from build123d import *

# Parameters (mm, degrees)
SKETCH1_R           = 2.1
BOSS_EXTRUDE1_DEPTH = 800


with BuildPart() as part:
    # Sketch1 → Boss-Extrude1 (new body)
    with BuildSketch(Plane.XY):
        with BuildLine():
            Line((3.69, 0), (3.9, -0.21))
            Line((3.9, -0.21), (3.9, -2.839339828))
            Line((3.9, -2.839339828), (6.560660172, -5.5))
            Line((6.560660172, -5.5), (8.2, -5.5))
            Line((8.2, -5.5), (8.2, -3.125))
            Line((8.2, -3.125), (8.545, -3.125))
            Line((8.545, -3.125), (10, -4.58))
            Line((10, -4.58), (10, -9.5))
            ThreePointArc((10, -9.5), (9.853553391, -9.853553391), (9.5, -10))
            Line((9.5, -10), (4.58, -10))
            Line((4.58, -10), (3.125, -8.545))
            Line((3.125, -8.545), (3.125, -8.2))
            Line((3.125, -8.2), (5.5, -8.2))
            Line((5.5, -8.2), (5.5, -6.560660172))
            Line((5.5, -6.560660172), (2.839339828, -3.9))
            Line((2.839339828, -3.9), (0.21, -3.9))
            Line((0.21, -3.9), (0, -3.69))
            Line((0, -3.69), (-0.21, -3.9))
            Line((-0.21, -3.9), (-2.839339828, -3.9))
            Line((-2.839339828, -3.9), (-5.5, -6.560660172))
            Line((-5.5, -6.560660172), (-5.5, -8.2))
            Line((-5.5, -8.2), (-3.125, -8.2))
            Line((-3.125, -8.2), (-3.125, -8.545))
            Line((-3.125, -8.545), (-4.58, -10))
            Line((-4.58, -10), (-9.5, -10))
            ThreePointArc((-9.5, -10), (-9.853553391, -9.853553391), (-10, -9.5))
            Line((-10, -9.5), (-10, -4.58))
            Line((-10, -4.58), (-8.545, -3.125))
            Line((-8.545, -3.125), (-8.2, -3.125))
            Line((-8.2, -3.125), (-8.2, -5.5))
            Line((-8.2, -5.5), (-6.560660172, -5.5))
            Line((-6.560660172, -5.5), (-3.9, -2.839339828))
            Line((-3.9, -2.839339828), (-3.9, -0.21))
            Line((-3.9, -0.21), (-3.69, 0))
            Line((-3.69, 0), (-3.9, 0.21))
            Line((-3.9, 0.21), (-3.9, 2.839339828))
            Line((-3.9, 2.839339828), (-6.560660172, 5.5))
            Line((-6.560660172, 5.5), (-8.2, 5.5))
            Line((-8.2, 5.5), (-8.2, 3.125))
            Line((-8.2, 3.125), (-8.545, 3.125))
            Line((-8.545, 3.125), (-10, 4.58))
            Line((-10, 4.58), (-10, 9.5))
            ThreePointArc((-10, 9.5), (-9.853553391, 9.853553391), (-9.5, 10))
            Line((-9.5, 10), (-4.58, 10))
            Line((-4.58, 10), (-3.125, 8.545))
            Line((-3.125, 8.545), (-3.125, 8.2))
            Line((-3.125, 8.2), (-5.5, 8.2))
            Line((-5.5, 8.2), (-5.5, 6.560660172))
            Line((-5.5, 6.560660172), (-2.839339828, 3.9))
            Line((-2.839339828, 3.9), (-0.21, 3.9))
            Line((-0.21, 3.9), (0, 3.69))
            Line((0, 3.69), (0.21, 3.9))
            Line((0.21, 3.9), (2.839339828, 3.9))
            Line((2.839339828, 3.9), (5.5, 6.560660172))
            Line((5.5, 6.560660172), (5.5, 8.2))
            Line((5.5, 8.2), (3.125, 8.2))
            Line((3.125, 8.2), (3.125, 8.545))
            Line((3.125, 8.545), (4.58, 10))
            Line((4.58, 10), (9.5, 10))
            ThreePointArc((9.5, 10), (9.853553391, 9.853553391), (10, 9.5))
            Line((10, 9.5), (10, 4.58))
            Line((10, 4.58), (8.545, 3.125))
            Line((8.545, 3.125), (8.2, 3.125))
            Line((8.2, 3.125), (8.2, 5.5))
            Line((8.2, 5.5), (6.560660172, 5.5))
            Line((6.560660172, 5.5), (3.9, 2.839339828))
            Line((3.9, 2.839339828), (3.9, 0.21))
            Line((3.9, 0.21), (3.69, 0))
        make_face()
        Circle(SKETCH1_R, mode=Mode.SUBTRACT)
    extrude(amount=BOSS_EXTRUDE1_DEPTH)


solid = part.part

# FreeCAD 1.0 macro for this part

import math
import FreeCAD as App
import Part
import Sketcher
Q = App.Units.Quantity

doc = App.newDocument("Part")
body = doc.addObject("PartDesign::Body", "Body")

# Sketch on XY plane
sketch1 = body.newObject("Sketcher::SketchObject", "Sketch")
sketch1.AttachmentSupport = (doc.getObject("XY_Plane"), [""])
sketch1.MapMode = "FlatFace"
sketch1.addGeometry([
    Part.LineSegment(App.Vector(3.9, -0.21, 0), App.Vector(3.69, 0, 0)),  # 0
    Part.LineSegment(App.Vector(3.69, 0, 0), App.Vector(3.9, 0.21, 0)),  # 1
    Part.LineSegment(App.Vector(3.9, 0.21, 0), App.Vector(3.9, 2.84, 0)),  # 2
    Part.LineSegment(App.Vector(3.9, 2.84, 0), App.Vector(6.56, 5.5, 0)),  # 3
    Part.LineSegment(App.Vector(6.56, 5.5, 0), App.Vector(8.2, 5.5, 0)),  # 4
    Part.LineSegment(App.Vector(8.2, 5.5, 0), App.Vector(8.2, 3.12, 0)),  # 5
    Part.LineSegment(App.Vector(8.2, 3.12, 0), App.Vector(8.54, 3.12, 0)),  # 6
    Part.LineSegment(App.Vector(8.54, 3.12, 0), App.Vector(10, 4.58, 0)),  # 7
    Part.LineSegment(App.Vector(10, 4.58, 0), App.Vector(10, 9.5, 0)),  # 8
    Part.ArcOfCircle(Part.Circle(App.Vector(9.5, 9.5, 0), App.Vector(0, 0, 1), 0.5), math.radians(0), math.radians(90)),  # 9
    Part.LineSegment(App.Vector(9.5, 10, 0), App.Vector(4.58, 10, 0)),  # 10
    Part.LineSegment(App.Vector(4.58, 10, 0), App.Vector(3.12, 8.54, 0)),  # 11
    Part.LineSegment(App.Vector(3.12, 8.54, 0), App.Vector(3.12, 8.2, 0)),  # 12
    Part.LineSegment(App.Vector(3.12, 8.2, 0), App.Vector(5.5, 8.2, 0)),  # 13
    Part.LineSegment(App.Vector(5.5, 8.2, 0), App.Vector(5.5, 6.56, 0)),  # 14
    Part.LineSegment(App.Vector(5.5, 6.56, 0), App.Vector(2.84, 3.9, 0)),  # 15
    Part.LineSegment(App.Vector(2.84, 3.9, 0), App.Vector(0.21, 3.9, 0)),  # 16
    Part.LineSegment(App.Vector(0.21, 3.9, 0), App.Vector(0, 3.69, 0)),  # 17
    Part.LineSegment(App.Vector(0, 3.69, 0), App.Vector(-0.21, 3.9, 0)),  # 18
    Part.LineSegment(App.Vector(-0.21, 3.9, 0), App.Vector(-2.84, 3.9, 0)),  # 19
    Part.LineSegment(App.Vector(-2.84, 3.9, 0), App.Vector(-5.5, 6.56, 0)),  # 20
    Part.LineSegment(App.Vector(-5.5, 6.56, 0), App.Vector(-5.5, 8.2, 0)),  # 21
    Part.LineSegment(App.Vector(-5.5, 8.2, 0), App.Vector(-3.12, 8.2, 0)),  # 22
    Part.LineSegment(App.Vector(-3.12, 8.2, 0), App.Vector(-3.12, 8.54, 0)),  # 23
    Part.LineSegment(App.Vector(-3.12, 8.54, 0), App.Vector(-4.58, 10, 0)),  # 24
    Part.LineSegment(App.Vector(-4.58, 10, 0), App.Vector(-9.5, 10, 0)),  # 25
    Part.ArcOfCircle(Part.Circle(App.Vector(-9.5, 9.5, 0), App.Vector(0, 0, 1), 0.5), math.radians(90), math.radians(180)),  # 26
    Part.LineSegment(App.Vector(-10, 9.5, 0), App.Vector(-10, 4.58, 0)),  # 27
    Part.LineSegment(App.Vector(-10, 4.58, 0), App.Vector(-8.54, 3.12, 0)),  # 28
    Part.LineSegment(App.Vector(-8.54, 3.12, 0), App.Vector(-8.2, 3.12, 0)),  # 29
    Part.LineSegment(App.Vector(-8.2, 3.12, 0), App.Vector(-8.2, 5.5, 0)),  # 30
    Part.LineSegment(App.Vector(-8.2, 5.5, 0), App.Vector(-6.56, 5.5, 0)),  # 31
    Part.LineSegment(App.Vector(-6.56, 5.5, 0), App.Vector(-3.9, 2.84, 0)),  # 32
    Part.LineSegment(App.Vector(-3.9, 2.84, 0), App.Vector(-3.9, 0.21, 0)),  # 33
    Part.LineSegment(App.Vector(-3.9, 0.21, 0), App.Vector(-3.69, 0, 0)),  # 34
    Part.LineSegment(App.Vector(-3.69, 0, 0), App.Vector(-3.9, -0.21, 0)),  # 35
    Part.LineSegment(App.Vector(-3.9, -0.21, 0), App.Vector(-3.9, -2.84, 0)),  # 36
    Part.LineSegment(App.Vector(-3.9, -2.84, 0), App.Vector(-6.56, -5.5, 0)),  # 37
    Part.LineSegment(App.Vector(-6.56, -5.5, 0), App.Vector(-8.2, -5.5, 0)),  # 38
    Part.LineSegment(App.Vector(-8.2, -5.5, 0), App.Vector(-8.2, -3.12, 0)),  # 39
    Part.LineSegment(App.Vector(-8.2, -3.12, 0), App.Vector(-8.54, -3.12, 0)),  # 40
    Part.LineSegment(App.Vector(-8.54, -3.12, 0), App.Vector(-10, -4.58, 0)),  # 41
    Part.LineSegment(App.Vector(-10, -4.58, 0), App.Vector(-10, -9.5, 0)),  # 42
    Part.ArcOfCircle(Part.Circle(App.Vector(-9.5, -9.5, 0), App.Vector(0, 0, 1), 0.5), math.radians(180), math.radians(270)),  # 43
    Part.LineSegment(App.Vector(-9.5, -10, 0), App.Vector(-4.58, -10, 0)),  # 44
    Part.LineSegment(App.Vector(-4.58, -10, 0), App.Vector(-3.12, -8.54, 0)),  # 45
    Part.LineSegment(App.Vector(-3.12, -8.54, 0), App.Vector(-3.12, -8.2, 0)),  # 46
    Part.LineSegment(App.Vector(-3.12, -8.2, 0), App.Vector(-5.5, -8.2, 0)),  # 47
    Part.LineSegment(App.Vector(-5.5, -8.2, 0), App.Vector(-5.5, -6.56, 0)),  # 48
    Part.LineSegment(App.Vector(-5.5, -6.56, 0), App.Vector(-2.84, -3.9, 0)),  # 49
    Part.LineSegment(App.Vector(-2.84, -3.9, 0), App.Vector(-0.21, -3.9, 0)),  # 50
    Part.LineSegment(App.Vector(-0.21, -3.9, 0), App.Vector(0, -3.69, 0)),  # 51
    Part.LineSegment(App.Vector(0, -3.69, 0), App.Vector(0.21, -3.9, 0)),  # 52
    Part.LineSegment(App.Vector(0.21, -3.9, 0), App.Vector(2.84, -3.9, 0)),  # 53
    Part.LineSegment(App.Vector(2.84, -3.9, 0), App.Vector(5.5, -6.56, 0)),  # 54
    Part.LineSegment(App.Vector(5.5, -6.56, 0), App.Vector(5.5, -8.2, 0)),  # 55
    Part.LineSegment(App.Vector(5.5, -8.2, 0), App.Vector(3.12, -8.2, 0)),  # 56
    Part.LineSegment(App.Vector(3.12, -8.2, 0), App.Vector(3.12, -8.54, 0)),  # 57
    Part.LineSegment(App.Vector(3.12, -8.54, 0), App.Vector(4.58, -10, 0)),  # 58
    Part.LineSegment(App.Vector(4.58, -10, 0), App.Vector(9.5, -10, 0)),  # 59
    Part.ArcOfCircle(Part.Circle(App.Vector(9.5, -9.5, 0), App.Vector(0, 0, 1), 0.5), math.radians(-90), math.radians(0)),  # 60
    Part.LineSegment(App.Vector(10, -9.5, 0), App.Vector(10, -4.58, 0)),  # 61
    Part.LineSegment(App.Vector(10, -4.58, 0), App.Vector(8.54, -3.12, 0)),  # 62
    Part.LineSegment(App.Vector(8.54, -3.12, 0), App.Vector(8.2, -3.12, 0)),  # 63
    Part.LineSegment(App.Vector(8.2, -3.12, 0), App.Vector(8.2, -5.5, 0)),  # 64
    Part.LineSegment(App.Vector(8.2, -5.5, 0), App.Vector(6.56, -5.5, 0)),  # 65
    Part.LineSegment(App.Vector(6.56, -5.5, 0), App.Vector(3.9, -2.84, 0)),  # 66
    Part.LineSegment(App.Vector(3.9, -2.84, 0), App.Vector(3.9, -0.21, 0)),  # 67
    Part.Circle(App.Vector(0, 0, 0), App.Vector(0, 0, 1), 2.1),  # 68
], False)
sketch1.addConstraint([
    Sketcher.Constraint("Coincident", 0, 2, 1, 1),
    Sketcher.Constraint("Coincident", 1, 2, 2, 1),
    Sketcher.Constraint("Coincident", 2, 2, 3, 1),
    Sketcher.Constraint("Coincident", 3, 2, 4, 1),
    Sketcher.Constraint("Coincident", 4, 2, 5, 1),
    Sketcher.Constraint("Coincident", 5, 2, 6, 1),
    Sketcher.Constraint("Coincident", 6, 2, 7, 1),
    Sketcher.Constraint("Coincident", 7, 2, 8, 1),
    Sketcher.Constraint("Tangent", 8, 2, 9, 1),
    Sketcher.Constraint("Tangent", 9, 2, 10, 1),
    Sketcher.Constraint("Coincident", 10, 2, 11, 1),
    Sketcher.Constraint("Coincident", 11, 2, 12, 1),
    Sketcher.Constraint("Coincident", 12, 2, 13, 1),
    Sketcher.Constraint("Coincident", 13, 2, 14, 1),
    Sketcher.Constraint("Coincident", 14, 2, 15, 1),
    Sketcher.Constraint("Coincident", 15, 2, 16, 1),
    Sketcher.Constraint("Coincident", 16, 2, 17, 1),
    Sketcher.Constraint("Coincident", 17, 2, 18, 1),
    Sketcher.Constraint("Coincident", 18, 2, 19, 1),
    Sketcher.Constraint("Coincident", 19, 2, 20, 1),
    Sketcher.Constraint("Coincident", 20, 2, 21, 1),
    Sketcher.Constraint("Coincident", 21, 2, 22, 1),
    Sketcher.Constraint("Coincident", 22, 2, 23, 1),
    Sketcher.Constraint("Coincident", 23, 2, 24, 1),
    Sketcher.Constraint("Coincident", 24, 2, 25, 1),
    Sketcher.Constraint("Tangent", 25, 2, 26, 1),
    Sketcher.Constraint("Tangent", 26, 2, 27, 1),
    Sketcher.Constraint("Coincident", 27, 2, 28, 1),
    Sketcher.Constraint("Coincident", 28, 2, 29, 1),
    Sketcher.Constraint("Coincident", 29, 2, 30, 1),
    Sketcher.Constraint("Coincident", 30, 2, 31, 1),
    Sketcher.Constraint("Coincident", 31, 2, 32, 1),
    Sketcher.Constraint("Coincident", 32, 2, 33, 1),
    Sketcher.Constraint("Coincident", 33, 2, 34, 1),
    Sketcher.Constraint("Coincident", 34, 2, 35, 1),
    Sketcher.Constraint("Coincident", 35, 2, 36, 1),
    Sketcher.Constraint("Coincident", 36, 2, 37, 1),
    Sketcher.Constraint("Coincident", 37, 2, 38, 1),
    Sketcher.Constraint("Coincident", 38, 2, 39, 1),
    Sketcher.Constraint("Coincident", 39, 2, 40, 1),
    Sketcher.Constraint("Coincident", 40, 2, 41, 1),
    Sketcher.Constraint("Coincident", 41, 2, 42, 1),
    Sketcher.Constraint("Tangent", 42, 2, 43, 1),
    Sketcher.Constraint("Tangent", 43, 2, 44, 1),
    Sketcher.Constraint("Coincident", 44, 2, 45, 1),
    Sketcher.Constraint("Coincident", 45, 2, 46, 1),
    Sketcher.Constraint("Coincident", 46, 2, 47, 1),
    Sketcher.Constraint("Coincident", 47, 2, 48, 1),
    Sketcher.Constraint("Coincident", 48, 2, 49, 1),
    Sketcher.Constraint("Coincident", 49, 2, 50, 1),
    Sketcher.Constraint("Coincident", 50, 2, 51, 1),
    Sketcher.Constraint("Coincident", 51, 2, 52, 1),
    Sketcher.Constraint("Coincident", 52, 2, 53, 1),
    Sketcher.Constraint("Coincident", 53, 2, 54, 1),
    Sketcher.Constraint("Coincident", 54, 2, 55, 1),
    Sketcher.Constraint("Coincident", 55, 2, 56, 1),
    Sketcher.Constraint("Coincident", 56, 2, 57, 1),
    Sketcher.Constraint("Coincident", 57, 2, 58, 1),
    Sketcher.Constraint("Coincident", 58, 2, 59, 1),
    Sketcher.Constraint("Tangent", 59, 2, 60, 1),
    Sketcher.Constraint("Tangent", 60, 2, 61, 1),
    Sketcher.Constraint("Coincident", 61, 2, 62, 1),
    Sketcher.Constraint("Coincident", 62, 2, 63, 1),
    Sketcher.Constraint("Coincident", 63, 2, 64, 1),
    Sketcher.Constraint("Coincident", 64, 2, 65, 1),
    Sketcher.Constraint("Coincident", 65, 2, 66, 1),
    Sketcher.Constraint("Coincident", 66, 2, 67, 1),
    Sketcher.Constraint("Coincident", 67, 2, 0, 1),
    Sketcher.Constraint("Vertical", 2),
    Sketcher.Constraint("Horizontal", 4),
    Sketcher.Constraint("Vertical", 5),
    Sketcher.Constraint("Horizontal", 6),
    Sketcher.Constraint("Vertical", 8),
    Sketcher.Constraint("Horizontal", 10),
    Sketcher.Constraint("Vertical", 12),
    Sketcher.Constraint("Horizontal", 13),
    Sketcher.Constraint("Vertical", 14),
    Sketcher.Constraint("Horizontal", 16),
    Sketcher.Constraint("Horizontal", 19),
    Sketcher.Constraint("Vertical", 21),
    Sketcher.Constraint("Horizontal", 22),
    Sketcher.Constraint("Vertical", 23),
    Sketcher.Constraint("Horizontal", 25),
    Sketcher.Constraint("Vertical", 27),
    Sketcher.Constraint("Horizontal", 29),
    Sketcher.Constraint("Vertical", 30),
    Sketcher.Constraint("Horizontal", 31),
    Sketcher.Constraint("Vertical", 33),
    Sketcher.Constraint("Vertical", 36),
    Sketcher.Constraint("Horizontal", 38),
    Sketcher.Constraint("Vertical", 39),
    Sketcher.Constraint("Horizontal", 40),
    Sketcher.Constraint("Vertical", 42),
    Sketcher.Constraint("Horizontal", 44),
    Sketcher.Constraint("Vertical", 46),
    Sketcher.Constraint("Horizontal", 47),
    Sketcher.Constraint("Vertical", 48),
    Sketcher.Constraint("Horizontal", 50),
    Sketcher.Constraint("Horizontal", 53),
    Sketcher.Constraint("Vertical", 55),
    Sketcher.Constraint("Horizontal", 56),
    Sketcher.Constraint("Vertical", 57),
    Sketcher.Constraint("Horizontal", 59),
    Sketcher.Constraint("Vertical", 61),
    Sketcher.Constraint("Horizontal", 63),
    Sketcher.Constraint("Vertical", 64),
    Sketcher.Constraint("Horizontal", 65),
    Sketcher.Constraint("Vertical", 67),
    Sketcher.Constraint("Coincident", 68, 3, -1, 1),
    Sketcher.Constraint("Equal", 9, 26),
    Sketcher.Constraint("Equal", 26, 43),
    Sketcher.Constraint("Equal", 43, 60),
    Sketcher.Constraint("Symmetric", 9, 3, 43, 3, -1, 1),
    Sketcher.Constraint("Symmetric", 26, 3, 60, 3, -1, 1),
    Sketcher.Constraint("Symmetric", 0, 2, 34, 2, -1, 1),
    Sketcher.Constraint("Symmetric", 1, 2, 35, 2, -1, 1),
    Sketcher.Constraint("Symmetric", 3, 2, 37, 2, -1, 1),
    Sketcher.Constraint("Symmetric", 5, 2, 39, 2, -1, 1),
    Sketcher.Constraint("Symmetric", 11, 2, 45, 2, -1, 1),
    Sketcher.Constraint("Symmetric", 13, 2, 47, 2, -1, 1),
    Sketcher.Constraint("Symmetric", 15, 2, 49, 2, -1, 1),
    Sketcher.Constraint("Symmetric", 17, 2, 51, 2, -1, 1),
    Sketcher.Constraint("Symmetric", 18, 2, 52, 2, -1, 1),
    Sketcher.Constraint("Symmetric", 20, 2, 54, 2, -1, 1),
    Sketcher.Constraint("Symmetric", 22, 2, 56, 2, -1, 1),
    Sketcher.Constraint("Symmetric", 28, 2, 62, 2, -1, 1),
    Sketcher.Constraint("Symmetric", 30, 2, 64, 2, -1, 1),
    Sketcher.Constraint("Symmetric", 32, 2, 66, 2, -1, 1),
    Sketcher.Constraint("Symmetric", 9, 3, 26, 3, -2),
    Sketcher.Constraint("Symmetric", 16, 2, 18, 2, -2),
    Sketcher.Constraint("Symmetric", 14, 2, 20, 2, -2),
    Sketcher.Constraint("Symmetric", 12, 2, 22, 2, -2),
    Sketcher.Constraint("Symmetric", 6, 2, 28, 2, -2),
    Sketcher.Constraint("Symmetric", 4, 2, 30, 2, -2),
    Sketcher.Constraint("Symmetric", 2, 2, 32, 2, -2),
    Sketcher.Constraint("PointOnObject", 0, 2, -1),
    Sketcher.Constraint("PointOnObject", 17, 2, -2),
    Sketcher.Constraint("Perpendicular", 0, 1),
    Sketcher.Constraint("Parallel", 1, 3),
    Sketcher.Constraint("Parallel", 3, 7),
    Sketcher.Constraint("Parallel", 7, 11),
    Sketcher.Constraint("Parallel", 11, 15),
    Sketcher.Constraint("Parallel", 15, 17),
    Sketcher.Constraint("Perpendicular", 17, 18),
    Sketcher.Constraint("Parallel", 18, 20),
    Sketcher.Constraint("Parallel", 20, 24),
    Sketcher.Constraint("Parallel", 24, 28),
    Sketcher.Constraint("Parallel", 28, 32),
    Sketcher.Constraint("Parallel", 32, 34),
    Sketcher.Constraint("Parallel", 35, 37),
    Sketcher.Constraint("Parallel", 37, 41),
    Sketcher.Constraint("Parallel", 41, 45),
    Sketcher.Constraint("Parallel", 45, 49),
    Sketcher.Constraint("Parallel", 49, 51),
    Sketcher.Constraint("Parallel", 52, 54),
    Sketcher.Constraint("Parallel", 54, 58),
    Sketcher.Constraint("Parallel", 58, 62),
    Sketcher.Constraint("Parallel", 62, 66),
    Sketcher.Constraint("Horizontal", 11, 2, 23, 2),
    Sketcher.Constraint("Horizontal", 45, 2, 57, 2),
    Sketcher.Constraint("Horizontal", 41, 2, 61, 2),
    Sketcher.Constraint("Equal", 53, 2),
    Sketcher.Constraint("Equal", 56, 5),
    Sketcher.Constraint("Equal", 59, 8),
    Sketcher.Constraint("Equal", 63, 12),
    Sketcher.Constraint("Equal", 65, 14),
    Sketcher.Constraint("Equal", 7, 11),
    Sketcher.Constraint("Equal", 3, 15),
    Sketcher.Constraint("Equal", 1, 17),
    Sketcher.Constraint("Diameter", 68, Q("4.2 mm")),
    Sketcher.Constraint("Radius", 9, Q("0.5 mm")),
    Sketcher.Constraint("DistanceX", -1, 1, 7, 2, Q("10 mm")),
    Sketcher.Constraint("DistanceX", 10, 2, 10, 1, Q("4.92 mm")),
    Sketcher.Constraint("DistanceX", -1, 1, 1, 2, Q("3.9 mm")),
    Sketcher.Constraint("DistanceY", -1, 1, 3, 2, Q("5.5 mm")),
    Sketcher.Constraint("DistanceX", -1, 1, 4, 2, Q("8.2 mm")),
    Sketcher.Constraint("DistanceX", 6, 1, 6, 2, Q("0.345 mm")),
    Sketcher.Constraint("DistanceX", -1, 1, 0, 2, Q("3.69 mm")),
    Sketcher.Constraint("DistanceX", 4, 1, 4, 2, Q("1.63934 mm")),
])
pad1 = body.newObject("PartDesign::Pad", "Pad")
pad1.Profile = sketch1
pad1.Length = 800

doc.recompute()
